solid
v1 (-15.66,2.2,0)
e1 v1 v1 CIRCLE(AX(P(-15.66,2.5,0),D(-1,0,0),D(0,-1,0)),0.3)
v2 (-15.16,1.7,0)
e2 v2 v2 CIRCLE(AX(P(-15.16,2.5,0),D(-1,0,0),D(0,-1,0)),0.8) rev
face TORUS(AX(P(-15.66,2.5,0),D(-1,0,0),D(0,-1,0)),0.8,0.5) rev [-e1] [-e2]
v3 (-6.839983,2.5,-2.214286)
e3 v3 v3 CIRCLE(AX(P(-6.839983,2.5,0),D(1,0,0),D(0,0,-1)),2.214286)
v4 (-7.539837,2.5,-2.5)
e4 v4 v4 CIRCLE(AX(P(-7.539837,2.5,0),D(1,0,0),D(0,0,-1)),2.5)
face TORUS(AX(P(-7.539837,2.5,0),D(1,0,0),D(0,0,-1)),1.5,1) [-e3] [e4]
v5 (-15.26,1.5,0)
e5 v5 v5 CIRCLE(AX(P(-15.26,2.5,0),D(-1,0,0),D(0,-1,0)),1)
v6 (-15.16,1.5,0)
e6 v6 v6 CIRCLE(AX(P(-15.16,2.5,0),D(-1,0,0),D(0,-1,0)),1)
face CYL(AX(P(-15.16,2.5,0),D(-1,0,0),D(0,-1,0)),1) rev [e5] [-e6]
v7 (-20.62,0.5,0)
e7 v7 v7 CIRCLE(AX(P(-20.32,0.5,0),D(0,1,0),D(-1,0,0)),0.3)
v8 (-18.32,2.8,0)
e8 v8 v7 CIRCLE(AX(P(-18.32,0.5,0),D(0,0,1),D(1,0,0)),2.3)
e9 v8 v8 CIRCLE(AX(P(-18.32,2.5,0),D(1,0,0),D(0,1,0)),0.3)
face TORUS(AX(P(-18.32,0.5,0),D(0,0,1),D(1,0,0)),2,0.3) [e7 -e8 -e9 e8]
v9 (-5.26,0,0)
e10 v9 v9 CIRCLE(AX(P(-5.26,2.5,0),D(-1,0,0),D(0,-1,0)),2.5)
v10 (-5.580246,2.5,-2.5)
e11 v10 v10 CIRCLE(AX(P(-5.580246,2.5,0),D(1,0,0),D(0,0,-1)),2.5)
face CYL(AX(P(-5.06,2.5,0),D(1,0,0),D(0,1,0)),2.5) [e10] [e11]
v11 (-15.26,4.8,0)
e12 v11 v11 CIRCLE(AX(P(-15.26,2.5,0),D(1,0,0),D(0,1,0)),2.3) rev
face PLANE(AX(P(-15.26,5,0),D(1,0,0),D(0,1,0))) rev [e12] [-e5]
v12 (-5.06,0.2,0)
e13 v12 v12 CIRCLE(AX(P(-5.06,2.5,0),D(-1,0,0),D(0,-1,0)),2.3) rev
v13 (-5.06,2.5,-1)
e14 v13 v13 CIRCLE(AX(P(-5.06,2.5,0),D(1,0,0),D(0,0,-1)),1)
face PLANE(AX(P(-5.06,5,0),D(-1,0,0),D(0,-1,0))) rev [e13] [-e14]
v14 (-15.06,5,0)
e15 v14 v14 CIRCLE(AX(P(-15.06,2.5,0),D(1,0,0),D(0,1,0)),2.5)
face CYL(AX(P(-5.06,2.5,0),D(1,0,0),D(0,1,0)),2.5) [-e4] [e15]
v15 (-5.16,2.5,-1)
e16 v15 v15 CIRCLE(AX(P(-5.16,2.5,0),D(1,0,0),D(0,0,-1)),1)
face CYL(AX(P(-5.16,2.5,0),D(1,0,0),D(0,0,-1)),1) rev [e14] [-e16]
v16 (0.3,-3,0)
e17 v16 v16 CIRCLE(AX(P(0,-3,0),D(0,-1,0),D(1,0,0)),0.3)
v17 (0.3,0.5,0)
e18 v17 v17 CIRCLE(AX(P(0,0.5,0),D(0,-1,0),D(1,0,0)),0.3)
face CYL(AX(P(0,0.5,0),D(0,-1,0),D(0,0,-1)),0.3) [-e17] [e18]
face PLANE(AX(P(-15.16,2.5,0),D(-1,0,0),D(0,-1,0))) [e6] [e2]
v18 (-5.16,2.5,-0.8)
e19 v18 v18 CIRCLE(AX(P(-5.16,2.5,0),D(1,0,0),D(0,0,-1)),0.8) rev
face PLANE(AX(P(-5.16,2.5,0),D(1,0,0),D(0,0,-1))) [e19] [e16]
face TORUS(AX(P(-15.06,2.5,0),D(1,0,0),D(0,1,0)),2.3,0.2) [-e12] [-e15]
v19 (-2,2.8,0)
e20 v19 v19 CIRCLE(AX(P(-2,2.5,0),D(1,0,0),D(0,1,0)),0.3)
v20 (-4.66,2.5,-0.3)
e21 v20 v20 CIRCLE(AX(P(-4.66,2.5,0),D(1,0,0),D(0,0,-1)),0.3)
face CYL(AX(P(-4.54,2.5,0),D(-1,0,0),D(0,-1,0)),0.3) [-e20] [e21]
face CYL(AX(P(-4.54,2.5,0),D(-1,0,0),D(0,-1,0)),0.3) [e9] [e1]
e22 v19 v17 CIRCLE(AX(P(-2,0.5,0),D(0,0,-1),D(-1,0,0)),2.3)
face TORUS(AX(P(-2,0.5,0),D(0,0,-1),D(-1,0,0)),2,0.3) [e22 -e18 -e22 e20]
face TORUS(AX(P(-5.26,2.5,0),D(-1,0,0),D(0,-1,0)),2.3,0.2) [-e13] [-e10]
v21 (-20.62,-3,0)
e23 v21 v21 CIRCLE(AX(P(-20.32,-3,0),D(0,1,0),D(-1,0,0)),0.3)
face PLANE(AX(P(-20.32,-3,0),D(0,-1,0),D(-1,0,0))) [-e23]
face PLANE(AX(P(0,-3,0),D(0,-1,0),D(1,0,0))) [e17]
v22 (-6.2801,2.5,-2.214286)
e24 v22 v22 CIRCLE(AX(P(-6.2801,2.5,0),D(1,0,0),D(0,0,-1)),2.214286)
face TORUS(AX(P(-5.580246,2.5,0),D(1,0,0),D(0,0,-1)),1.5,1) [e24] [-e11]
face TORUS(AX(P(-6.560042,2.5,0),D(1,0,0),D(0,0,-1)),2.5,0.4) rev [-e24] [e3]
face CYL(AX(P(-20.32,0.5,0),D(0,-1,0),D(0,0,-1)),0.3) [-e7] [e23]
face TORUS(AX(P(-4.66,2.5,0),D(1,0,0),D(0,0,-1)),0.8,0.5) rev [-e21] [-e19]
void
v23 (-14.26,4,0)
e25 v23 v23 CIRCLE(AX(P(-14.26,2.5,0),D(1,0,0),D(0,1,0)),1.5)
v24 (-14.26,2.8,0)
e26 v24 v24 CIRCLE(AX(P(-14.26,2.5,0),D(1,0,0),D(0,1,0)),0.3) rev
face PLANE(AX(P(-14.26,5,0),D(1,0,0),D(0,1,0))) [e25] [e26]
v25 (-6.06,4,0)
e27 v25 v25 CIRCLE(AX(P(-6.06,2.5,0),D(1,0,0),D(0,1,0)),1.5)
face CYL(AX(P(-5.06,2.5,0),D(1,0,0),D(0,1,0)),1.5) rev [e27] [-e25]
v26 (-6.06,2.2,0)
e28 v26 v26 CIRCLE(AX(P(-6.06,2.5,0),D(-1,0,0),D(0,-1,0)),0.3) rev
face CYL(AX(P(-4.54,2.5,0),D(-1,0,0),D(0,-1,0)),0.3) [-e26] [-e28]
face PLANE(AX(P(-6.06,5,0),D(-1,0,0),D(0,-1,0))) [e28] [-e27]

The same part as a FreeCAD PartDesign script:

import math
import FreeCAD as App
import Part
import Sketcher

V = App.Vector
Q = App.Units.Quantity


def edges_at(feature, points):
    """Names of the edges that pass closest to the given points."""
    edges = feature.Shape.Edges
    near = lambda p: min(range(len(edges)), key=lambda i: edges[i].distToShape(Part.Vertex(*p))[0])
    return sorted({f"Edge{near(p) + 1}" for p in points})

doc = App.newDocument("Part")
body = doc.addObject("PartDesign::Body", "Body")

# Sketch on XY plane
sketch1 = body.newObject("Sketcher::SketchObject", "Sketch")
sketch1.AttachmentSupport = (doc.getObject("XY_Plane"), [""])
sketch1.MapMode = "FlatFace"
sketch1.addGeometry([
    Part.LineSegment(V(-15.3, 5, 0), V(-15.3, 2.5, 0)),  # 0
    Part.LineSegment(V(-15.3, 2.5, 0), V(-14.3, 2.5, 0)),  # 1
    Part.LineSegment(V(-14.3, 2.5, 0), V(-14.3, 4, 0)),  # 2
    Part.LineSegment(V(-14.3, 4, 0), V(-6.1, 4, 0)),  # 3
    Part.LineSegment(V(-6.1, 4, 0), V(-6.1, 2.5, 0)),  # 4
    Part.LineSegment(V(-6.1, 2.5, 0), V(-5.1, 2.5, 0)),  # 5
    Part.LineSegment(V(-5.1, 2.5, 0), V(-5.1, 5, 0)),  # 6
    Part.LineSegment(V(-5.1, 5, 0), V(-15.3, 5, 0)),  # 7
], False)
sketch1.addGeometry(Part.LineSegment(V(-5.1, 2.5, 0), V(-15.3, 2.5, 0)), True)  # axis
sketch1.addConstraint([
    Sketcher.Constraint("Coincident", 0, 2, 1, 1),
    Sketcher.Constraint("Coincident", 1, 2, 2, 1),
    Sketcher.Constraint("Coincident", 2, 2, 3, 1),
    Sketcher.Constraint("Coincident", 3, 2, 4, 1),
    Sketcher.Constraint("Coincident", 4, 2, 5, 1),
    Sketcher.Constraint("Coincident", 5, 2, 6, 1),
    Sketcher.Constraint("Coincident", 6, 2, 7, 1),
    Sketcher.Constraint("Coincident", 7, 2, 0, 1),
    Sketcher.Constraint("Vertical", 0),
    Sketcher.Constraint("Horizontal", 1),
    Sketcher.Constraint("Vertical", 2),
    Sketcher.Constraint("Horizontal", 3),
    Sketcher.Constraint("Vertical", 4),
    Sketcher.Constraint("Horizontal", 5),
    Sketcher.Constraint("Vertical", 6),
    Sketcher.Constraint("Horizontal", 7),
    Sketcher.Constraint("Horizontal", 8),
    Sketcher.Constraint("Coincident", 8, 1, 5, 2),
    Sketcher.Constraint("Coincident", 8, 2, 0, 2),
    Sketcher.Constraint("Equal", 1, 5),
    Sketcher.Constraint("DistanceX", 1, 1, 1, 2, Q("1 mm")),
    Sketcher.Constraint("DistanceX", 3, 1, 3, 2, Q("8.2 mm")),
    Sketcher.Constraint("DistanceY", 0, 2, 0, 1, Q("2.5 mm")),
    Sketcher.Constraint("DistanceY", 2, 1, 2, 2, Q("1.5 mm")),
    Sketcher.Constraint("DistanceY", -1, 1, 2, 2, Q("4 mm")),
    Sketcher.Constraint("DistanceX", 0, 2, -1, 1, Q("15.26 mm")),
])
revolution = body.newObject("PartDesign::Revolution", "Revolution")
revolution.Profile = sketch1
revolution.ReferenceAxis = (sketch1, ["Axis0"])
revolution.Angle = 360

# Sketch on YZ plane
sketch2 = body.newObject("Sketcher::SketchObject", "Sketch001")
sketch2.AttachmentSupport = (doc.getObject("YZ_Plane"), [""])
sketch2.MapMode = "FlatFace"
sketch2.AttachmentOffset = App.Placement(V(0, 0, -5.06), App.Rotation())
sketch2.addGeometry(Part.Circle(V(2.5, 0, 0), V(0, 0, 1), 1), False)
sketch2.addConstraint([
    Sketcher.Constraint("PointOnObject", 0, 3, -1),
    Sketcher.Constraint("Diameter", 0, Q("2 mm")),
    Sketcher.Constraint("DistanceX", -1, 1, 0, 3, Q("2.5 mm")),
])
pocket1 = body.newObject("PartDesign::Pocket", "Pocket")
pocket1.Profile = sketch2
pocket1.Length = 0.1

# Sketch on YZ plane
sketch3 = body.newObject("Sketcher::SketchObject", "Sketch002")
sketch3.AttachmentSupport = (doc.getObject("YZ_Plane"), [""])
sketch3.MapMode = "FlatFace"
sketch3.AttachmentOffset = App.Placement(V(0, 0, -15.26), App.Rotation())
sketch3.addGeometry(Part.Circle(V(2.5, 0, 0), V(0, 0, 1), 1), False)
sketch3.addConstraint([
    Sketcher.Constraint("PointOnObject", 0, 3, -1),
    Sketcher.Constraint("Diameter", 0, Q("2 mm")),
    Sketcher.Constraint("DistanceX", -1, 1, 0, 3, Q("2.5 mm")),
])
pocket2 = body.newObject("PartDesign::Pocket", "Pocket001")
pocket2.Profile = sketch3
pocket2.Length = 0.1
pocket2.Reversed = True
doc.recompute()

fillet = body.newObject("PartDesign::Fillet", "Fillet")
fillet.Base = (pocket2, edges_at(pocket2, [(-15.26, 0, 0), (-5.06, 0, 0)]))
fillet.Radius = 0.2

# Sketch on YZ plane
sketch4 = body.newObject("Sketcher::SketchObject", "Sketch003")
sketch4.AttachmentSupport = (doc.getObject("YZ_Plane"), [""])
sketch4.MapMode = "FlatFace"
sketch4.AttachmentOffset = App.Placement(V(0, 0, -5.16), App.Rotation())
sketch4.addGeometry(Part.Circle(V(2.5, 0, 0), V(0, 0, 1), 0.3), False)
sketch4.addConstraint([
    Sketcher.Constraint("PointOnObject", 0, 3, -1),
    Sketcher.Constraint("Diameter", 0, Q("0.6 mm")),
    Sketcher.Constraint("DistanceX", -1, 1, 0, 3, Q("2.5 mm")),
])
pad1 = body.newObject("PartDesign::Pad", "Pad")
pad1.Profile = sketch4
pad1.Type = "TwoLengths"
pad1.Length = 0.62
pad1.Length2 = 10.62
doc.recompute()

fillet2 = body.newObject("PartDesign::Fillet", "Fillet001")
fillet2.Base = (pad1, edges_at(pad1, [(-5.16, 2.5, 0.3), (-15.16, 2.5, 0.3)]))
fillet2.Radius = 0.5

# Sketch on YZ plane
sketch5 = body.newObject("Sketcher::SketchObject", "Sketch004")
sketch5.AttachmentSupport = (doc.getObject("YZ_Plane"), [""])
sketch5.MapMode = "FlatFace"
sketch5.AttachmentOffset = App.Placement(V(0, 0, -4.54), App.Rotation())
sketch5.addGeometry(Part.Circle(V(2.5, 0, 0), V(0, 0, 1), 0.3), False)
sketch5.addConstraint([
    Sketcher.Constraint("PointOnObject", 0, 3, -1),
    Sketcher.Constraint("Diameter", 0, Q("0.6 mm")),
    Sketcher.Constraint("DistanceX", -1, 1, 0, 3, Q("2.5 mm")),
])

# Sketch on XY plane
sketch6 = body.newObject("Sketcher::SketchObject", "Sketch005")
sketch6.AttachmentSupport = (doc.getObject("XY_Plane"), [""])
sketch6.MapMode = "FlatFace"
sketch6.addGeometry([
    Part.LineSegment(V(0, -3, 0), V(0, 0.5, 0)),
    Part.ArcOfCircle(Part.Circle(V(-2, 0.5, 0), V(0, 0, 1), 2), math.radians(0), math.radians(90)),
    Part.LineSegment(V(-2, 2.5, 0), V(-4.5, 2.5, 0)),
], False)
sketch6.addConstraint([
    Sketcher.Constraint("Tangent", 0, 2, 1, 1),
    Sketcher.Constraint("Tangent", 1, 2, 2, 1),
    Sketcher.Constraint("Vertical", 0),
    Sketcher.Constraint("Horizontal", 2),
    Sketcher.Constraint("PointOnObject", 0, 1, -2),
    Sketcher.Constraint("Radius", 1, Q("2 mm")),
    Sketcher.Constraint("DistanceY", 0, 1, 0, 2, Q("3.5 mm")),
    Sketcher.Constraint("DistanceY", 0, 1, -1, 1, Q("3 mm")),
    Sketcher.Constraint("DistanceX", 2, 2, 2, 1, Q("2.54 mm")),
])
doc.recompute()

additivepipe = body.newObject("PartDesign::AdditivePipe", "AdditivePipe")
additivepipe.Profile = sketch5
additivepipe.Spine = (sketch6, ["Edge1", "Edge2", "Edge3"])
doc.recompute()

datumplane = body.newObject("PartDesign::Plane", "DatumPlane")
datumplane.AttachmentSupport = (doc.getObject("YZ_Plane"), [""])
datumplane.MapMode = "FlatFace"
datumplane.AttachmentOffset = App.Placement(V(0, 0, -10.16), App.Rotation())
mirrored = body.newObject("PartDesign::Mirrored", "Mirrored")
mirrored.Originals = [additivepipe]
mirrored.MirrorPlane = (datumplane, [""])
body.Tip = mirrored

# Sketch on XY plane
sketch7 = body.newObject("Sketcher::SketchObject", "Sketch006")
sketch7.AttachmentSupport = (doc.getObject("XY_Plane"), [""])
sketch7.MapMode = "FlatFace"
sketch7.addGeometry([
    Part.LineSegment(V(-5.58, 5, 0), V(-7.54, 5, 0)),
    Part.ArcOfCircle(Part.Circle(V(-7.54, 4, 0), V(0, 0, 1), 1), math.radians(46), math.radians(90)),
    Part.ArcOfCircle(Part.Circle(V(-6.56, 5, 0), V(0, 0, 1), 0.4), math.radians(-134), math.radians(-46)),
    Part.ArcOfCircle(Part.Circle(V(-5.58, 4, 0), V(0, 0, 1), 1), math.radians(90), math.radians(134)),
], False)
sketch7.addGeometry(Part.LineSegment(V(-5.58, 2.5, 0), V(-7.54, 2.5, 0)), True)  # axis
sketch7.addConstraint([
    Sketcher.Constraint("Tangent", 0, 2, 1, 2),
    Sketcher.Constraint("Tangent", 1, 1, 2, 1),
    Sketcher.Constraint("Tangent", 2, 2, 3, 2),
    Sketcher.Constraint("Tangent", 3, 1, 0, 1),
    Sketcher.Constraint("Horizontal", 0),
    Sketcher.Constraint("Horizontal", 4),
    Sketcher.Constraint("Equal", 1, 3),
    Sketcher.Constraint("Horizontal", 2, 3, 0, 2),
    Sketcher.Constraint("Vertical", 3, 1, 4, 1),
    Sketcher.Constraint("Vertical", 0, 2, 4, 2),
    Sketcher.Constraint("Radius", 1, Q("1 mm")),
    Sketcher.Constraint("Radius", 2, Q("0.4 mm")),
    Sketcher.Constraint("DistanceY", -1, 1, 1, 3, Q("4 mm")),
    Sketcher.Constraint("DistanceY", -1, 1, 4, 1, Q("2.5 mm")),
    Sketcher.Constraint("DistanceX", 2, 2, -1, 1, Q("6.2801 mm")),
])
groove = body.newObject("PartDesign::Groove", "Groove")
groove.Profile = sketch7
groove.ReferenceAxis = (sketch7, ["Axis0"])
groove.Angle = 360

doc.recompute()
